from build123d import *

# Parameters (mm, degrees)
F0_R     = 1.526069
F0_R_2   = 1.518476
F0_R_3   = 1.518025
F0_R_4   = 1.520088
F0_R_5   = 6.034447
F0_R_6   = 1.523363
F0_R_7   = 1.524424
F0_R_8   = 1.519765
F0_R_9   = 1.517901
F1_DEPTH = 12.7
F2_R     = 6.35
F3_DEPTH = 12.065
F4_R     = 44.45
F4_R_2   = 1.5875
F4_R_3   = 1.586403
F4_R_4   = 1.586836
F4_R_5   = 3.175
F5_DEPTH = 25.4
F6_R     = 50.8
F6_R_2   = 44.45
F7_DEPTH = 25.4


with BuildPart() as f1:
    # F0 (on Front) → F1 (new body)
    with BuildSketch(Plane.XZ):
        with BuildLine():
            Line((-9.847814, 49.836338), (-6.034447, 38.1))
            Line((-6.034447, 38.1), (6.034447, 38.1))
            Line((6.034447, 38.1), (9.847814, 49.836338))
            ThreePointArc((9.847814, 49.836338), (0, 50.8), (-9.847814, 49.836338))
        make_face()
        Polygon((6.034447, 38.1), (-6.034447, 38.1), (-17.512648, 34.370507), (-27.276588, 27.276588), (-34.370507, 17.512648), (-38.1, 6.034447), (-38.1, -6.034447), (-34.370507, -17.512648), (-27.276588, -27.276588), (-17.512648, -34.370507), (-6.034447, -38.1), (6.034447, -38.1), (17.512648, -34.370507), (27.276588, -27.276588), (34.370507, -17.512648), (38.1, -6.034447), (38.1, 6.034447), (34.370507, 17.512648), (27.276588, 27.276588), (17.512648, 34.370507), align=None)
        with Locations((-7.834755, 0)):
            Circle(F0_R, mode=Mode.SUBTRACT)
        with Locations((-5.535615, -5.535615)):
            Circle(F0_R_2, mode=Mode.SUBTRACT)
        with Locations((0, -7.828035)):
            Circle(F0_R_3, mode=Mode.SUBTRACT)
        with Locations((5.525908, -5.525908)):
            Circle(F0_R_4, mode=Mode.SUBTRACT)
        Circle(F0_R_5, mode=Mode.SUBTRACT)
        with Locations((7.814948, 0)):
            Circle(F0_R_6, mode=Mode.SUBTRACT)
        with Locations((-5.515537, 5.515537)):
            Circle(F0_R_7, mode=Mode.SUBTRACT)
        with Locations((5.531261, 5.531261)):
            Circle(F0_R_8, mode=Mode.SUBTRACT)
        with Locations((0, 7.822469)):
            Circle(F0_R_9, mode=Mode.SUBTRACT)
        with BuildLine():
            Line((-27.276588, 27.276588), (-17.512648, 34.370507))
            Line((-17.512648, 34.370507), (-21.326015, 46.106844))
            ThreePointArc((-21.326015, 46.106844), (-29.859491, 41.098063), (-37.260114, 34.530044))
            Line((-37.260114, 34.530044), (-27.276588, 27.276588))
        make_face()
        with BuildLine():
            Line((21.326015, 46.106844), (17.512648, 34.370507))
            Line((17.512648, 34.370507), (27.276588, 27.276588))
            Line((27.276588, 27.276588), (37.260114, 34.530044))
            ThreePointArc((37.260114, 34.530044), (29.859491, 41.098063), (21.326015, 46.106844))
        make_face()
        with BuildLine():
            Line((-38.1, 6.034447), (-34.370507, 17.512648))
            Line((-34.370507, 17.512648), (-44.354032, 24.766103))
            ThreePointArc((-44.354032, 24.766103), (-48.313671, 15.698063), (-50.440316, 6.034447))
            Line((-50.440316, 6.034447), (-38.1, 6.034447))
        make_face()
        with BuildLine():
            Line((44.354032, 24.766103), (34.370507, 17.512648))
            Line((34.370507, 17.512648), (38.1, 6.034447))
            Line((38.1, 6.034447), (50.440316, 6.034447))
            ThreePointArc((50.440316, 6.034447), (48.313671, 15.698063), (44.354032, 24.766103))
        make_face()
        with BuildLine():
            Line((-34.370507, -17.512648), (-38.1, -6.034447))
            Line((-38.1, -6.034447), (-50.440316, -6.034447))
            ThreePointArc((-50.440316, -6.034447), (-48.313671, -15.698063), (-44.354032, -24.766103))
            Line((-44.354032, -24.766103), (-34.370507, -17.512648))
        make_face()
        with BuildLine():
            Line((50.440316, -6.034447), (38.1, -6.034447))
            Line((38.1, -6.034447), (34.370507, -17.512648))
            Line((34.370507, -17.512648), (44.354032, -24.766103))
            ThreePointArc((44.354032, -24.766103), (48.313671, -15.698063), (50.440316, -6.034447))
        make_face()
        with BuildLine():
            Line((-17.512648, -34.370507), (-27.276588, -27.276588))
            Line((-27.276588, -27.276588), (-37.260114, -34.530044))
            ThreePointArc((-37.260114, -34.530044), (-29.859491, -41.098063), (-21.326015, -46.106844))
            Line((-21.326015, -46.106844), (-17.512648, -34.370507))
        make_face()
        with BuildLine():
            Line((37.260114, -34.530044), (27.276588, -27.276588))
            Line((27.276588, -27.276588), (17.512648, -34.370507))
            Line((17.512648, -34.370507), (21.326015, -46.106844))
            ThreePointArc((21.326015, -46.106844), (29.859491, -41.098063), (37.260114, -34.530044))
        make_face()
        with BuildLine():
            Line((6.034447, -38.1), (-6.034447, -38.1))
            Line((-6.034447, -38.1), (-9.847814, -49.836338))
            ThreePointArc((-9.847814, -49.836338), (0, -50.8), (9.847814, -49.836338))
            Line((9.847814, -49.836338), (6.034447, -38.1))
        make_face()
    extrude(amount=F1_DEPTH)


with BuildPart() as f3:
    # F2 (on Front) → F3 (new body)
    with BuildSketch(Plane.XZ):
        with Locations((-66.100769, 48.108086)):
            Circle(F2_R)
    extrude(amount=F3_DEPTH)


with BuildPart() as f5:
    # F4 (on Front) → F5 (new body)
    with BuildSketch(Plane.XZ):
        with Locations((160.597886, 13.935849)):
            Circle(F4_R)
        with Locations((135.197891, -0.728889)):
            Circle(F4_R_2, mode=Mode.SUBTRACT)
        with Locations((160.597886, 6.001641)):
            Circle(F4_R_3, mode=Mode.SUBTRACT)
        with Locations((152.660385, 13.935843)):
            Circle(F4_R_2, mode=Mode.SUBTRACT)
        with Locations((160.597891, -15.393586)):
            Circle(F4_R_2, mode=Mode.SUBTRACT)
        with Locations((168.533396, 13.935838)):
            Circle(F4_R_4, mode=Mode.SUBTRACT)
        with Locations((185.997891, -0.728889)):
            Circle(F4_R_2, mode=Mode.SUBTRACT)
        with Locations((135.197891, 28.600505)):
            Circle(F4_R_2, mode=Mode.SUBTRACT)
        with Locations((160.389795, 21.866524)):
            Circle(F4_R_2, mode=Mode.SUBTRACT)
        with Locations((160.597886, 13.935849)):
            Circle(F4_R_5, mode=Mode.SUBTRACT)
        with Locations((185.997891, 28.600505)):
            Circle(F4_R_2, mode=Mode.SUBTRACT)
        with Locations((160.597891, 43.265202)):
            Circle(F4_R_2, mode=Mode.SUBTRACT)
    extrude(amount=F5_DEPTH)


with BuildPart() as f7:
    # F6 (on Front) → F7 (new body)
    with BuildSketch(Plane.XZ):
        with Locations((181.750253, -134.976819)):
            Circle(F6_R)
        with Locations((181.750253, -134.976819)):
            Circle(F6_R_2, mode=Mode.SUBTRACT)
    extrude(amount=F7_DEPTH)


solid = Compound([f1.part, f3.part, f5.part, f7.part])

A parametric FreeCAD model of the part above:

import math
import FreeCAD as App
import Part
import Sketcher

V = App.Vector
Q = App.Units.Quantity

doc = App.newDocument("Part")
body = doc.addObject("PartDesign::Body", "Body")

sketch1 = body.newObject("Sketcher::SketchObject", "Sketch")
sketch1.AttachmentSupport = (doc.getObject("XZ_Plane"), [""])
sketch1.MapMode = "FlatFace"
sketch1.addGeometry([
    Part.LineSegment(V(-9.847814, 49.836338, 0), V(-6.034447, 38.1, 0)),
    Part.LineSegment(V(-6.034447, 38.1, 0), V(-17.512648, 34.370507, 0)),
    Part.LineSegment(V(-17.512648, 34.370507, 0), V(-21.326015, 46.106844, 0)),
    Part.ArcOfCircle(Part.Circle(V(0.000005, -0.00001, 0), V(0, 0, 1), 50.800011), math.radians(114.82218), math.radians(137.177818)),
    Part.LineSegment(V(-37.260114, 34.530044, 0), V(-27.276588, 27.276588, 0)),
    Part.LineSegment(V(-27.276588, 27.276588, 0), V(-34.370507, 17.512648, 0)),
    Part.LineSegment(V(-34.370507, 17.512648, 0), V(-44.354032, 24.766103, 0)),
    Part.ArcOfCircle(Part.Circle(V(0.000016, -0.000006, 0), V(0, 0, 1), 50.800017), math.radians(150.822183), math.radians(173.177817)),
    Part.LineSegment(V(-50.440316, 6.034447, 0), V(-38.1, 6.034447, 0)),
    Part.LineSegment(V(-38.1, 6.034447, 0), V(-38.1, -6.034447, 0)),
    Part.LineSegment(V(-38.1, -6.034447, 0), V(-50.440316, -6.034447, 0)),
    Part.ArcOfCircle(Part.Circle(V(0.000016, 0.000006, 0), V(0, 0, 1), 50.800017), math.radians(-173.177817), math.radians(-150.822183)),
    Part.LineSegment(V(-44.354032, -24.766103, 0), V(-34.370507, -17.512648, 0)),
    Part.LineSegment(V(-34.370507, -17.512648, 0), V(-27.276588, -27.276588, 0)),
    Part.LineSegment(V(-27.276588, -27.276588, 0), V(-37.260114, -34.530044, 0)),
    Part.ArcOfCircle(Part.Circle(V(0.000005, 0.00001, 0), V(0, 0, 1), 50.800011), math.radians(-137.177818), math.radians(-114.82218)),
    Part.LineSegment(V(-21.326015, -46.106844, 0), V(-17.512648, -34.370507, 0)),
    Part.LineSegment(V(-17.512648, -34.370507, 0), V(-6.034447, -38.1, 0)),
    Part.LineSegment(V(-6.034447, -38.1, 0), V(-9.847814, -49.836338, 0)),
    Part.ArcOfCircle(Part.Circle(V(0, 0.000013, 0), V(0, 0, 1), 50.800013), math.radians(-101.177818), math.radians(-78.822182)),
    Part.LineSegment(V(9.847814, -49.836338, 0), V(6.034447, -38.1, 0)),
    Part.LineSegment(V(6.034447, -38.1, 0), V(17.512648, -34.370507, 0)),
    Part.LineSegment(V(17.512648, -34.370507, 0), V(21.326015, -46.106844, 0)),
    Part.ArcOfCircle(Part.Circle(V(-0.000005, 0.00001, 0), V(0, 0, 1), 50.800011), math.radians(-65.17782), math.radians(-42.822182)),
    Part.LineSegment(V(37.260114, -34.530044, 0), V(27.276588, -27.276588, 0)),
    Part.LineSegment(V(27.276588, -27.276588, 0), V(34.370507, -17.512648, 0)),
    Part.LineSegment(V(34.370507, -17.512648, 0), V(44.354032, -24.766103, 0)),
    Part.ArcOfCircle(Part.Circle(V(-0.000016, 0.000006, 0), V(0, 0, 1), 50.800017), math.radians(-29.177817), math.radians(-6.822183)),
    Part.LineSegment(V(50.440316, -6.034447, 0), V(38.1, -6.034447, 0)),
    Part.LineSegment(V(38.1, -6.034447, 0), V(38.1, 6.034447, 0)),
    Part.LineSegment(V(38.1, 6.034447, 0), V(50.440316, 6.034447, 0)),
    Part.ArcOfCircle(Part.Circle(V(-0.000016, -0.000006, 0), V(0, 0, 1), 50.800017), math.radians(6.822183), math.radians(29.177817)),
    Part.LineSegment(V(44.354032, 24.766103, 0), V(34.370507, 17.512648, 0)),
    Part.LineSegment(V(34.370507, 17.512648, 0), V(27.276588, 27.276588, 0)),
    Part.LineSegment(V(27.276588, 27.276588, 0), V(37.260114, 34.530044, 0)),
    Part.ArcOfCircle(Part.Circle(V(-0.000005, -0.00001, 0), V(0, 0, 1), 50.800011), math.radians(42.822182), math.radians(65.17782)),
    Part.LineSegment(V(21.326015, 46.106844, 0), V(17.512648, 34.370507, 0)),
    Part.LineSegment(V(17.512648, 34.370507, 0), V(6.034447, 38.1, 0)),
    Part.LineSegment(V(6.034447, 38.1, 0), V(9.847814, 49.836338, 0)),
    Part.ArcOfCircle(Part.Circle(V(0, -0.000013, 0), V(0, 0, 1), 50.800013), math.radians(78.822182), math.radians(101.177818)),
    Part.Circle(V(-5.535615, -5.535615, 0), V(0, 0, 1), 1.518476),
    Part.Circle(V(0, -7.828035, 0), V(0, 0, 1), 1.518025),
    Part.Circle(V(5.525908, -5.525908, 0), V(0, 0, 1), 1.520088),
    Part.Circle(V(-7.834755, 0, 0), V(0, 0, 1), 1.526069),
    Part.Circle(V(-5.515537, 5.515537, 0), V(0, 0, 1), 1.524424),
    Part.Circle(V(0, 0, 0), V(0, 0, 1), 6.034447),
    Part.Circle(V(7.814948, 0, 0), V(0, 0, 1), 1.523363),
    Part.Circle(V(0, 7.822469, 0), V(0, 0, 1), 1.517901),
    Part.Circle(V(5.531261, 5.531261, 0), V(0, 0, 1), 1.519765),
], False)
sketch1.addConstraint([
    Sketcher.Constraint("Coincident", 0, 2, 1, 1),
    Sketcher.Constraint("Coincident", 1, 2, 2, 1),
    Sketcher.Constraint("Coincident", 2, 2, 3, 1),
    Sketcher.Constraint("Coincident", 3, 2, 4, 1),
    Sketcher.Constraint("Coincident", 4, 2, 5, 1),
    Sketcher.Constraint("Coincident", 5, 2, 6, 1),
    Sketcher.Constraint("Coincident", 6, 2, 7, 1),
    Sketcher.Constraint("Coincident", 7, 2, 8, 1),
    Sketcher.Constraint("Coincident", 8, 2, 9, 1),
    Sketcher.Constraint("Coincident", 9, 2, 10, 1),
    Sketcher.Constraint("Coincident", 10, 2, 11, 1),
    Sketcher.Constraint("Coincident", 11, 2, 12, 1),
    Sketcher.Constraint("Coincident", 12, 2, 13, 1),
    Sketcher.Constraint("Coincident", 13, 2, 14, 1),
    Sketcher.Constraint("Coincident", 14, 2, 15, 1),
    Sketcher.Constraint("Coincident", 15, 2, 16, 1),
    Sketcher.Constraint("Coincident", 16, 2, 17, 1),
    Sketcher.Constraint("Coincident", 17, 2, 18, 1),
    Sketcher.Constraint("Coincident", 18, 2, 19, 1),
    Sketcher.Constraint("Coincident", 19, 2, 20, 1),
    Sketcher.Constraint("Coincident", 20, 2, 21, 1),
    Sketcher.Constraint("Coincident", 21, 2, 22, 1),
    Sketcher.Constraint("Coincident", 22, 2, 23, 1),
    Sketcher.Constraint("Coincident", 23, 2, 24, 1),
    Sketcher.Constraint("Coincident", 24, 2, 25, 1),
    Sketcher.Constraint("Coincident", 25, 2, 26, 1),
    Sketcher.Constraint("Coincident", 26, 2, 27, 1),
    Sketcher.Constraint("Coincident", 27, 2, 28, 1),
    Sketcher.Constraint("Coincident", 28, 2, 29, 1),
    Sketcher.Constraint("Coincident", 29, 2, 30, 1),
    Sketcher.Constraint("Coincident", 30, 2, 31, 1),
    Sketcher.Constraint("Coincident", 31, 2, 32, 1),
    Sketcher.Constraint("Coincident", 32, 2, 33, 1),
    Sketcher.Constraint("Coincident", 33, 2, 34, 1),
    Sketcher.Constraint("Coincident", 34, 2, 35, 1),
    Sketcher.Constraint("Coincident", 35, 2, 36, 1),
    Sketcher.Constraint("Coincident", 36, 2, 37, 1),
    Sketcher.Constraint("Coincident", 37, 2, 38, 1),
    Sketcher.Constraint("Coincident", 38, 2, 39, 1),
    Sketcher.Constraint("Coincident", 39, 2, 0, 1),
    Sketcher.Constraint("Horizontal", 8),
    Sketcher.Constraint("Vertical", 9),
    Sketcher.Constraint("Horizontal", 10),
    Sketcher.Constraint("Horizontal", 28),
    Sketcher.Constraint("Vertical", 29),
    Sketcher.Constraint("Horizontal", 30),
    Sketcher.Constraint("Coincident", 45, 3, -1, 1),
    Sketcher.Constraint("Coincident", 19, 3, 15, 3),
    Sketcher.Constraint("Coincident", 23, 3, 19, 3),
    Sketcher.Constraint("Coincident", 39, 3, 3, 3),
    Sketcher.Constraint("Equal", 7, 11),
    Sketcher.Constraint("Equal", 3, 15),
    Sketcher.Constraint("Equal", 15, 23),
    Sketcher.Constraint("Equal", 11, 27),
    Sketcher.Constraint("Equal", 27, 31),
    Sketcher.Constraint("Equal", 23, 35),
    Sketcher.Constraint("Equal", 19, 39),
    Sketcher.Constraint("Symmetric", 3, 3, 19, 3, -1, 1),
    Sketcher.Constraint("Symmetric", 7, 3, 27, 3, -1, 1),
    Sketcher.Constraint("Symmetric", 11, 3, 31, 3, -1, 1),
    Sketcher.Constraint("Symmetric", 15, 3, 35, 3, -1, 1),
    Sketcher.Constraint("Symmetric", 0, 2, 20, 2, -1, 1),
    Sketcher.Constraint("Symmetric", 1, 2, 21, 2, -1, 1),
    Sketcher.Constraint("Symmetric", 4, 2, 24, 2, -1, 1),
    Sketcher.Constraint("Symmetric", 5, 2, 25, 2, -1, 1),
    Sketcher.Constraint("Symmetric", 8, 2, 28, 2, -1, 1),
    Sketcher.Constraint("Symmetric", 12, 2, 32, 2, -1, 1),
    Sketcher.Constraint("Symmetric", 13, 2, 33, 2, -1, 1),
    Sketcher.Constraint("Symmetric", 16, 2, 36, 2, -1, 1),
    Sketcher.Constraint("Symmetric", 17, 2, 37, 2, -1, 1),
    Sketcher.Constraint("Symmetric", 11, 3, 27, 3, -2),
    Sketcher.Constraint("Symmetric", 18, 2, 19, 2, -2),
    Sketcher.Constraint("Symmetric", 17, 2, 20, 2, -2),
    Sketcher.Constraint("Symmetric", 16, 2, 21, 2, -2),
    Sketcher.Constraint("Symmetric", 13, 2, 24, 2, -2),
    Sketcher.Constraint("Symmetric", 12, 2, 25, 2, -2),
    Sketcher.Constraint("PointOnObject", 41, 3, -2),
    Sketcher.Constraint("PointOnObject", 43, 3, -1),
    Sketcher.Constraint("PointOnObject", 46, 3, -1),
    Sketcher.Constraint("PointOnObject", 47, 3, -2),
    Sketcher.Constraint("Perpendicular", 0, 1),
    Sketcher.Constraint("Perpendicular", 1, 2),
    Sketcher.Constraint("Perpendicular", 4, 5),
    Sketcher.Constraint("Perpendicular", 5, 6),
    Sketcher.Constraint("Perpendicular", 12, 13),
    Sketcher.Constraint("Perpendicular", 13, 14),
    Sketcher.Constraint("Perpendicular", 16, 17),
    Sketcher.Constraint("Perpendicular", 17, 18),
    Sketcher.Constraint("Perpendicular", 21, 22),
    Sketcher.Constraint("Parallel", 6, 24),
    Sketcher.Constraint("Perpendicular", 25, 26),
    Sketcher.Constraint("Parallel", 14, 32),
    Sketcher.Constraint("Perpendicular", 33, 34),
    Sketcher.Constraint("Parallel", 18, 36),
    Sketcher.Constraint("Perpendicular", 37, 38),
    Sketcher.Constraint("Horizontal", 10, 2, 27, 2),
    Sketcher.Constraint("Horizontal", 8, 2, 29, 2),
    Sketcher.Constraint("Equal", 0, 2),
    Sketcher.Constraint("Equal", 2, 4),
    Sketcher.Constraint("Equal", 1, 5),
    Sketcher.Constraint("Equal", 4, 6),
    Sketcher.Constraint("Angle", 0, Q("-72.000002 deg")),
    Sketcher.Constraint("Angle", 4, Q("-35.999999 deg")),
    Sketcher.Constraint("DistanceY", -1, 1, 0, 2, Q("1.5 in")),
    Sketcher.Constraint("DistanceX", 8, 2, -1, 1, Q("1.5 in")),
    Sketcher.Constraint("Diameter", 47, Q("3.035802 mm")),
    Sketcher.Constraint("Diameter", 40, Q("3.036952 mm")),
    Sketcher.Constraint("Diameter", 41, Q("3.03605 mm")),
    Sketcher.Constraint("Diameter", 44, Q("3.048848 mm")),
    Sketcher.Constraint("Diameter", 48, Q("3.03953 mm")),
    Sketcher.Constraint("Radius", 3, Q("50.800011 mm")),
    Sketcher.Constraint("Diameter", 42, Q("3.040176 mm")),
    Sketcher.Constraint("Diameter", 43, Q("3.052138 mm")),
    Sketcher.Constraint("Diameter", 45, Q("12.068894 mm")),
    Sketcher.Constraint("Diameter", 46, Q("3.046726 mm")),
    Sketcher.Constraint("Radius", 7, Q("50.800017 mm")),
    Sketcher.Constraint("Radius", 19, Q("50.800013 mm")),
    Sketcher.Constraint("DistanceX", 40, 3, 31, 3, Q("5.535599 mm")),
    Sketcher.Constraint("DistanceY", 40, 3, 39, 3, Q("5.535602 mm")),
    Sketcher.Constraint("DistanceY", 42, 3, 3, 3, Q("5.525898 mm")),
    Sketcher.Constraint("DistanceX", 1, 2, 0, 2, Q("11.478201 mm")),
    Sketcher.Constraint("DistanceX", 3, 2, 2, 2, Q("15.934099 mm")),
    Sketcher.Constraint("DistanceY", 7, 2, 5, 2, Q("11.478201 mm")),
    Sketcher.Constraint("DistanceY", 21, 2, 42, 3, Q("28.844599 mm")),
    Sketcher.Constraint("DistanceX", 42, 3, 25, 2, Q("28.844599 mm")),
    Sketcher.Constraint("DistanceX", 8, 1, 8, 2, Q("12.340316 mm")),
    Sketcher.Constraint("DistanceX", -1, 1, 46, 3, Q("7.814948 mm")),
    Sketcher.Constraint("DistanceY", -1, 1, 47, 3, Q("7.822469 mm")),
    Sketcher.Constraint("DistanceX", -1, 1, 48, 3, Q("5.531261 mm")),
    Sketcher.Constraint("DistanceY", -1, 1, 48, 3, Q("5.531261 mm")),
    Sketcher.Constraint("DistanceY", 41, 3, 40, 3, Q("2.29242 mm")),
    Sketcher.Constraint("DistanceX", 43, 3, 40, 3, Q("2.29914 mm")),
    Sketcher.Constraint("DistanceX", 43, 3, 44, 3, Q("2.319218 mm")),
    Sketcher.Constraint("DistanceY", 27, 3, 44, 3, Q("5.515531 mm")),
])
pad1 = body.newObject("PartDesign::Pad", "Pad")
pad1.Profile = sketch1
pad1.Length = Q("0.5 in")
body2 = doc.addObject("PartDesign::Body", "Body001")

sketch2 = body2.newObject("Sketcher::SketchObject", "Sketch001")
sketch2.AttachmentSupport = (doc.getObject("XZ_Plane001"), [""])
sketch2.MapMode = "FlatFace"
sketch2.addGeometry(Part.Circle(V(-66, 48, 0), V(0, 0, 1), 6), False)
sketch2.addConstraint([
    Sketcher.Constraint("Diameter", 0, Q("0.5 in")),
    Sketcher.Constraint("DistanceX", 0, 3, -1, 1, Q("66.100769 mm")),
    Sketcher.Constraint("DistanceY", -1, 1, 0, 3, Q("48.108086 mm")),
])
pad2 = body2.newObject("PartDesign::Pad", "Pad001")
pad2.Profile = sketch2
pad2.Length = Q("0.475 in")
body3 = doc.addObject("PartDesign::Body", "Body002")

sketch3 = body3.newObject("Sketcher::SketchObject", "Sketch002")
sketch3.AttachmentSupport = (doc.getObject("XZ_Plane002"), [""])
sketch3.MapMode = "FlatFace"
sketch3.addGeometry([
    Part.Circle(V(160.6, 13.9, 0), V(0, 0, 1), 44.5),
    Part.Circle(V(135.2, -0.7, 0), V(0, 0, 1), 1.6),
    Part.Circle(V(160.6, 6, 0), V(0, 0, 1), 1.6),
    Part.Circle(V(160.6, -15.4, 0), V(0, 0, 1), 1.6),
    Part.Circle(V(186, -0.7, 0), V(0, 0, 1), 1.6),
    Part.Circle(V(135.2, 28.6, 0), V(0, 0, 1), 1.6),
    Part.Circle(V(152.7, 13.9, 0), V(0, 0, 1), 1.6),
    Part.Circle(V(160.6, 13.9, 0), V(0, 0, 1), 3.2),
    Part.Circle(V(160.4, 21.9, 0), V(0, 0, 1), 1.6),
    Part.Circle(V(168.5, 13.9, 0), V(0, 0, 1), 1.6),
    Part.Circle(V(186, 28.6, 0), V(0, 0, 1), 1.6),
    Part.Circle(V(160.6, 43.3, 0), V(0, 0, 1), 1.6),
], False)
sketch3.addConstraint([
    Sketcher.Constraint("Coincident", 7, 3, 0, 3),
    Sketcher.Constraint("Equal", 1, 3),
    Sketcher.Constraint("Equal", 3, 4),
    Sketcher.Constraint("Equal", 4, 5),
    Sketcher.Constraint("Equal", 5, 6),
    Sketcher.Constraint("Equal", 6, 8),
    Sketcher.Constraint("Equal", 8, 10),
    Sketcher.Constraint("Equal", 10, 11),
    Sketcher.Constraint("Horizontal", 1, 3, 4, 3),
    Sketcher.Constraint("Horizontal", 5, 3, 10, 3),
    Sketcher.Constraint("Vertical", 0, 3, 2, 3),
    Sketcher.Constraint("Vertical", 1, 3, 5, 3),
    Sketcher.Constraint("Vertical", 4, 3, 10, 3),
    Sketcher.Constraint("Vertical", 3, 3, 11, 3),
    Sketcher.Constraint("Diameter", 0, Q("3.5 in")),
    Sketcher.Constraint("Diameter", 7, Q("0.25 in")),
    Sketcher.Constraint("Diameter", 1, Q("0.125 in")),
    Sketcher.Constraint("DistanceX", 1, 3, 0, 3, Q("0.9999998 in")),
    Sketcher.Constraint("DistanceX", 1, 3, 3, 3, Q("1 in")),
    Sketcher.Constraint("DistanceX", 2, 3, 4, 3, Q("1.0000002 in")),
    Sketcher.Constraint("Diameter", 9, Q("3.173672 mm")),
    Sketcher.Constraint("DistanceX", 6, 3, 0, 3, Q("0.3125 in")),
    Sketcher.Constraint("Diameter", 2, Q("3.172806 mm")),
    Sketcher.Constraint("DistanceX", 8, 3, 9, 3, Q("8.143601 mm")),
    Sketcher.Constraint("DistanceY", -1, 1, 0, 3, Q("13.935849 mm")),
    Sketcher.Constraint("DistanceX", -1, 1, 1, 3, Q("135.197891 mm")),
    Sketcher.Constraint("DistanceY", 1, 3, -1, 1, Q("0.728889 mm")),
    Sketcher.Constraint("DistanceY", -1, 1, 2, 3, Q("6.001641 mm")),
    Sketcher.Constraint("DistanceY", 3, 3, 5, 3, Q("43.994091 mm")),
    Sketcher.Constraint("DistanceY", 6, 3, 5, 3, Q("14.664662 mm")),
    Sketcher.Constraint("DistanceX", 8, 3, 0, 3, Q("0.208091 mm")),
    Sketcher.Constraint("DistanceY", 6, 3, 8, 3, Q("7.930681 mm")),
    Sketcher.Constraint("DistanceY", 8, 3, 11, 3, Q("21.398678 mm")),
    Sketcher.Constraint("DistanceY", 3, 3, -1, 1, Q("15.393586 mm")),
    Sketcher.Constraint("DistanceY", -1, 1, 9, 3, Q("13.935838 mm")),
])
pad3 = body3.newObject("PartDesign::Pad", "Pad002")
pad3.Profile = sketch3
pad3.Length = Q("1 in")
body4 = doc.addObject("PartDesign::Body", "Body003")

sketch4 = body4.newObject("Sketcher::SketchObject", "Sketch003")
sketch4.AttachmentSupport = (doc.getObject("XZ_Plane003"), [""])
sketch4.MapMode = "FlatFace"
sketch4.addGeometry([
    Part.Circle(V(182, -135, 0), V(0, 0, 1), 51),
    Part.Circle(V(182, -135, 0), V(0, 0, 1), 44),
], False)
sketch4.addConstraint([
    Sketcher.Constraint("Coincident", 1, 3, 0, 3),
    Sketcher.Constraint("Diameter", 0, Q("4 in")),
    Sketcher.Constraint("Diameter", 1, Q("3.5 in")),
    Sketcher.Constraint("DistanceY", 0, 3, -1, 1, Q("134.976819 mm")),
    Sketcher.Constraint("DistanceX", -1, 1, 0, 3, Q("181.750253 mm")),
])
pad4 = body4.newObject("PartDesign::Pad", "Pad003")
pad4.Profile = sketch4
pad4.Length = Q("1 in")

doc.recompute()
